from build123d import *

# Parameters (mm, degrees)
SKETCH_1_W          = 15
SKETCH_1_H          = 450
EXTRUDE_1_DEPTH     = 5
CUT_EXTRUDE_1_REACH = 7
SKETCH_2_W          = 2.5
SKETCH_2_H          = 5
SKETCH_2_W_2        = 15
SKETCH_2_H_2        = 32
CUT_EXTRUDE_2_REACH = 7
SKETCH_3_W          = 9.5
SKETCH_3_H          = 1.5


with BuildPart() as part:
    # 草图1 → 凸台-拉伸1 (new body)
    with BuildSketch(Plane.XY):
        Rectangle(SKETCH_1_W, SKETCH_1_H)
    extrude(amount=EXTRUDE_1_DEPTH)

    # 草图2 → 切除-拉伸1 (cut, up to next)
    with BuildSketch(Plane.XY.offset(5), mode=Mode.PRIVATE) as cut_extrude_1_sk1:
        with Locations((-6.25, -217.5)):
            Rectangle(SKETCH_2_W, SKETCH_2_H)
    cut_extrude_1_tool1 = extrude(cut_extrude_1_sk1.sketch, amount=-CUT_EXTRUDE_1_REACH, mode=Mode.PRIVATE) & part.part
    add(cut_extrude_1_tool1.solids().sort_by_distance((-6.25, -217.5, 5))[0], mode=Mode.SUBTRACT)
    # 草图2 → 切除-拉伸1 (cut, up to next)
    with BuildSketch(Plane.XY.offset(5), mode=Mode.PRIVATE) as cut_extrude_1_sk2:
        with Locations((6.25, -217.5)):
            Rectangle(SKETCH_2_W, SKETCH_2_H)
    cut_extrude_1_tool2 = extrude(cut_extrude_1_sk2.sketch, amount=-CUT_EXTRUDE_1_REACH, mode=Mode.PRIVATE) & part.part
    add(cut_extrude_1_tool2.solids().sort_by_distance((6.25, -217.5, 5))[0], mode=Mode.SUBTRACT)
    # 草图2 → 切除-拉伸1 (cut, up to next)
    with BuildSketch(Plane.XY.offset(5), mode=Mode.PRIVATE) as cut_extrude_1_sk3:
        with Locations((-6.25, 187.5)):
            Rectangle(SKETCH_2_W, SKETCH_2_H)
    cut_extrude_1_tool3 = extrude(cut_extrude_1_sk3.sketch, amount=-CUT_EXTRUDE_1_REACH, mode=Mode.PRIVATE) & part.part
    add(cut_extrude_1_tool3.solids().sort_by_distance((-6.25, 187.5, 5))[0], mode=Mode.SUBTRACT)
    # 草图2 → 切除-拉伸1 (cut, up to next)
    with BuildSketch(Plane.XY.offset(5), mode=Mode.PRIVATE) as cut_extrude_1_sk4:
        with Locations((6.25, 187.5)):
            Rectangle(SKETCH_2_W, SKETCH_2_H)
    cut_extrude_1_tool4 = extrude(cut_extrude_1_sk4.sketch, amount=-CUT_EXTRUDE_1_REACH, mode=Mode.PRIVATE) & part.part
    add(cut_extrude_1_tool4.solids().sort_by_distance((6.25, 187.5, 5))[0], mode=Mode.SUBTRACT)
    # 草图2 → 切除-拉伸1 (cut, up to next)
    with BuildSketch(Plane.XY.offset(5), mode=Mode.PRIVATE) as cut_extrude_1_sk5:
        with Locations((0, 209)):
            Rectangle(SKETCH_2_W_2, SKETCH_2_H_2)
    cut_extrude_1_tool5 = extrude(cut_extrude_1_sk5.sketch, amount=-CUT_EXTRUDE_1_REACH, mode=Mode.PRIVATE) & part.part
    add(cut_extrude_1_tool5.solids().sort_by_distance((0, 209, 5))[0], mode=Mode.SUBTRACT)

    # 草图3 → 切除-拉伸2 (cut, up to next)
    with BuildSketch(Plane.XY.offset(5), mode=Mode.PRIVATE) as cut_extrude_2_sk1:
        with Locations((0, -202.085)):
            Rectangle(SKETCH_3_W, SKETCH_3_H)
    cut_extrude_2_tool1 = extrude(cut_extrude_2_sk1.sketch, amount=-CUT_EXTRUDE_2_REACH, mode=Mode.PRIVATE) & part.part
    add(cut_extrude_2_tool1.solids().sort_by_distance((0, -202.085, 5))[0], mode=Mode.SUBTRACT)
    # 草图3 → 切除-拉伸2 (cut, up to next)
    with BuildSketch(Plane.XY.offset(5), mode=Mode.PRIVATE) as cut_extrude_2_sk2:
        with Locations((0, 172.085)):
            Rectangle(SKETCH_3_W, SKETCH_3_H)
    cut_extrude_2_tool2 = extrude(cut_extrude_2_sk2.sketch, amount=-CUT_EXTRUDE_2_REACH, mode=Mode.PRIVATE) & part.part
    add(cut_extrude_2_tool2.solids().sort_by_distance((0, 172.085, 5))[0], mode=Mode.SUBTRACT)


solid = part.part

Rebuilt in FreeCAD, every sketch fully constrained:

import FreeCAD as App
import Part
import Sketcher

V = App.Vector
Q = App.Units.Quantity


def add_polygon(sketch, points):
    """Adds a closed chain of lines whose ends are joined by coincident constraints."""
    first, n = sketch.GeometryCount, len(points)
    for a, b in zip(points, points[1:] + points[:1]):
        sketch.addGeometry(Part.LineSegment(App.Vector(*a, 0), App.Vector(*b, 0)), False)
    for i in range(n):
        sketch.addConstraint(Sketcher.Constraint("Coincident", first + i, 2, first + (i + 1) % n, 1))

doc = App.newDocument("Part")
body = doc.addObject("PartDesign::Body", "Body")

# Sketch on XY plane
sketch1 = doc.addObject("Sketcher::SketchObject", "Sketch")
body.addObject(sketch1)
sketch1.AttachmentSupport = (doc.XY_Plane, [""])
sketch1.MapMode = "FlatFace"
add_polygon(sketch1, [(-8, 225), (-8, -225), (8, -225), (8, 225)])  # lines 0-3
sketch1.addConstraint([
    Sketcher.Constraint("Vertical", 0),
    Sketcher.Constraint("Horizontal", 1),
    Sketcher.Constraint("Vertical", 2),
    Sketcher.Constraint("Horizontal", 3),
    Sketcher.Constraint("Symmetric", 0, 2, 2, 2, -1, 1),
    Sketcher.Constraint("DistanceX", 1, 1, 1, 2, Q("15 mm")),
    Sketcher.Constraint("DistanceY", 0, 2, 0, 1, Q("450 mm")),
])
pad1 = doc.addObject("PartDesign::Pad", "Pad")
body.addObject(pad1)
pad1.Profile = sketch1
pad1.Length = 5

# Sketch on XY plane
sketch2 = doc.addObject("Sketcher::SketchObject", "Sketch001")
body.addObject(sketch2)
sketch2.AttachmentSupport = (doc.XY_Plane, [""])
sketch2.MapMode = "FlatFace"
sketch2.AttachmentOffset = App.Placement(V(0, 0, 5), App.Rotation())
add_polygon(sketch2, [(-7.5, -215), (-7.5, -220), (-5, -220), (-5, -215)])  # lines 0-3
sketch2.addConstraint([
    Sketcher.Constraint("Vertical", 0),
    Sketcher.Constraint("Horizontal", 1),
    Sketcher.Constraint("Vertical", 2),
    Sketcher.Constraint("Horizontal", 3),
    Sketcher.Constraint("DistanceY", 0, 2, 0, 1, Q("5 mm")),
    Sketcher.Constraint("DistanceX", 1, 1, 1, 2, Q("2.5 mm")),
    Sketcher.Constraint("DistanceY", 0, 2, -1, 1, Q("220 mm")),
    Sketcher.Constraint("DistanceX", 1, 2, -1, 1, Q("5 mm")),
])
pocket1 = doc.addObject("PartDesign::Pocket", "Pocket")
body.addObject(pocket1)
pocket1.Profile = sketch2
pocket1.Type = "UpToFirst"

# Sketch on XY plane
sketch3 = doc.addObject("Sketcher::SketchObject", "Sketch002")
body.addObject(sketch3)
sketch3.AttachmentSupport = (doc.XY_Plane, [""])
sketch3.MapMode = "FlatFace"
sketch3.AttachmentOffset = App.Placement(V(0, 0, 5), App.Rotation())
add_polygon(sketch3, [(5, -215), (5, -220), (7.5, -220), (7.5, -215)])  # lines 0-3
sketch3.addConstraint([
    Sketcher.Constraint("Vertical", 0),
    Sketcher.Constraint("Horizontal", 1),
    Sketcher.Constraint("Vertical", 2),
    Sketcher.Constraint("Horizontal", 3),
    Sketcher.Constraint("DistanceY", 0, 2, 0, 1, Q("5 mm")),
    Sketcher.Constraint("DistanceX", 1, 1, 1, 2, Q("2.5 mm")),
    Sketcher.Constraint("DistanceX", -1, 1, 0, 2, Q("5 mm")),
    Sketcher.Constraint("DistanceY", 0, 2, -1, 1, Q("220 mm")),
])
pocket2 = doc.addObject("PartDesign::Pocket", "Pocket001")
body.addObject(pocket2)
pocket2.Profile = sketch3
pocket2.Type = "UpToFirst"

# Sketch on XY plane
sketch4 = doc.addObject("Sketcher::SketchObject", "Sketch003")
body.addObject(sketch4)
sketch4.AttachmentSupport = (doc.XY_Plane, [""])
sketch4.MapMode = "FlatFace"
sketch4.AttachmentOffset = App.Placement(V(0, 0, 5), App.Rotation())
add_polygon(sketch4, [(-7.5, 190), (-7.5, 185), (-5, 185), (-5, 190)])  # lines 0-3
sketch4.addConstraint([
    Sketcher.Constraint("Vertical", 0),
    Sketcher.Constraint("Horizontal", 1),
    Sketcher.Constraint("Vertical", 2),
    Sketcher.Constraint("Horizontal", 3),
    Sketcher.Constraint("DistanceY", 0, 2, 0, 1, Q("5 mm")),
    Sketcher.Constraint("DistanceX", 1, 1, 1, 2, Q("2.5 mm")),
    Sketcher.Constraint("DistanceY", -1, 1, 0, 2, Q("185 mm")),
    Sketcher.Constraint("DistanceX", 1, 2, -1, 1, Q("5 mm")),
])
pocket3 = doc.addObject("PartDesign::Pocket", "Pocket002")
body.addObject(pocket3)
pocket3.Profile = sketch4
pocket3.Type = "UpToFirst"

# Sketch on XY plane
sketch5 = doc.addObject("Sketcher::SketchObject", "Sketch004")
body.addObject(sketch5)
sketch5.AttachmentSupport = (doc.XY_Plane, [""])
sketch5.MapMode = "FlatFace"
sketch5.AttachmentOffset = App.Placement(V(0, 0, 5), App.Rotation())
add_polygon(sketch5, [(5, 190), (5, 185), (7.5, 185), (7.5, 190)])  # lines 0-3
sketch5.addConstraint([
    Sketcher.Constraint("Vertical", 0),
    Sketcher.Constraint("Horizontal", 1),
    Sketcher.Constraint("Vertical", 2),
    Sketcher.Constraint("Horizontal", 3),
    Sketcher.Constraint("DistanceY", 0, 2, 0, 1, Q("5 mm")),
    Sketcher.Constraint("DistanceX", 1, 1, 1, 2, Q("2.5 mm")),
    Sketcher.Constraint("DistanceX", -1, 1, 0, 2, Q("5 mm")),
    Sketcher.Constraint("DistanceY", -1, 1, 0, 2, Q("185 mm")),
])
pocket4 = doc.addObject("PartDesign::Pocket", "Pocket003")
body.addObject(pocket4)
pocket4.Profile = sketch5
pocket4.Type = "UpToFirst"

# Sketch on XY plane
sketch6 = doc.addObject("Sketcher::SketchObject", "Sketch005")
body.addObject(sketch6)
sketch6.AttachmentSupport = (doc.XY_Plane, [""])
sketch6.MapMode = "FlatFace"
sketch6.AttachmentOffset = App.Placement(V(0, 0, 5), App.Rotation())
add_polygon(sketch6, [(-8, 225), (-8, 193), (8, 193), (8, 225)])  # lines 0-3
sketch6.addConstraint([
    Sketcher.Constraint("Vertical", 0),
    Sketcher.Constraint("Horizontal", 1),
    Sketcher.Constraint("Vertical", 2),
    Sketcher.Constraint("Horizontal", 3),
    Sketcher.Constraint("DistanceX", 1, 1, 1, 2, Q("15 mm")),
    Sketcher.Constraint("DistanceY", 0, 2, 0, 1, Q("32 mm")),
    Sketcher.Constraint("DistanceY", -1, 1, 0, 2, Q("193 mm")),
    Sketcher.Constraint("DistanceX", 0, 2, -1, 1, Q("7.5 mm")),
])
pocket5 = doc.addObject("PartDesign::Pocket", "Pocket004")
body.addObject(pocket5)
pocket5.Profile = sketch6
pocket5.Type = "UpToFirst"

# Sketch on XY plane
sketch7 = doc.addObject("Sketcher::SketchObject", "Sketch006")
body.addObject(sketch7)
sketch7.AttachmentSupport = (doc.XY_Plane, [""])
sketch7.MapMode = "FlatFace"
sketch7.AttachmentOffset = App.Placement(V(0, 0, 5), App.Rotation())
add_polygon(sketch7, [(-4.8, -201.3), (-4.8, -202.8), (4.8, -202.8), (4.8, -201.3)])  # lines 0-3
sketch7.addConstraint([
    Sketcher.Constraint("Vertical", 0),
    Sketcher.Constraint("Horizontal", 1),
    Sketcher.Constraint("Vertical", 2),
    Sketcher.Constraint("Horizontal", 3),
    Sketcher.Constraint("DistanceX", 1, 1, 1, 2, Q("9.5 mm")),
    Sketcher.Constraint("DistanceY", 0, 2, 0, 1, Q("1.5 mm")),
    Sketcher.Constraint("DistanceX", 0, 2, -1, 1, Q("4.75 mm")),
    Sketcher.Constraint("DistanceY", 0, 2, -1, 1, Q("202.835 mm")),
])
pocket6 = doc.addObject("PartDesign::Pocket", "Pocket005")
body.addObject(pocket6)
pocket6.Profile = sketch7
pocket6.Type = "UpToFirst"

# Sketch on XY plane
sketch8 = doc.addObject("Sketcher::SketchObject", "Sketch007")
body.addObject(sketch8)
sketch8.AttachmentSupport = (doc.XY_Plane, [""])
sketch8.MapMode = "FlatFace"
sketch8.AttachmentOffset = App.Placement(V(0, 0, 5), App.Rotation())
add_polygon(sketch8, [(-4.8, 172.8), (-4.8, 171.3), (4.8, 171.3), (4.8, 172.8)])  # lines 0-3
sketch8.addConstraint([
    Sketcher.Constraint("Vertical", 0),
    Sketcher.Constraint("Horizontal", 1),
    Sketcher.Constraint("Vertical", 2),
    Sketcher.Constraint("Horizontal", 3),
    Sketcher.Constraint("DistanceX", 1, 1, 1, 2, Q("9.5 mm")),
    Sketcher.Constraint("DistanceY", 0, 2, 0, 1, Q("1.5 mm")),
    Sketcher.Constraint("DistanceX", 0, 2, -1, 1, Q("4.75 mm")),
    Sketcher.Constraint("DistanceY", -1, 1, 0, 2, Q("171.335 mm")),
])
pocket7 = doc.addObject("PartDesign::Pocket", "Pocket006")
body.addObject(pocket7)
pocket7.Profile = sketch8
pocket7.Type = "UpToFirst"

doc.recompute()
